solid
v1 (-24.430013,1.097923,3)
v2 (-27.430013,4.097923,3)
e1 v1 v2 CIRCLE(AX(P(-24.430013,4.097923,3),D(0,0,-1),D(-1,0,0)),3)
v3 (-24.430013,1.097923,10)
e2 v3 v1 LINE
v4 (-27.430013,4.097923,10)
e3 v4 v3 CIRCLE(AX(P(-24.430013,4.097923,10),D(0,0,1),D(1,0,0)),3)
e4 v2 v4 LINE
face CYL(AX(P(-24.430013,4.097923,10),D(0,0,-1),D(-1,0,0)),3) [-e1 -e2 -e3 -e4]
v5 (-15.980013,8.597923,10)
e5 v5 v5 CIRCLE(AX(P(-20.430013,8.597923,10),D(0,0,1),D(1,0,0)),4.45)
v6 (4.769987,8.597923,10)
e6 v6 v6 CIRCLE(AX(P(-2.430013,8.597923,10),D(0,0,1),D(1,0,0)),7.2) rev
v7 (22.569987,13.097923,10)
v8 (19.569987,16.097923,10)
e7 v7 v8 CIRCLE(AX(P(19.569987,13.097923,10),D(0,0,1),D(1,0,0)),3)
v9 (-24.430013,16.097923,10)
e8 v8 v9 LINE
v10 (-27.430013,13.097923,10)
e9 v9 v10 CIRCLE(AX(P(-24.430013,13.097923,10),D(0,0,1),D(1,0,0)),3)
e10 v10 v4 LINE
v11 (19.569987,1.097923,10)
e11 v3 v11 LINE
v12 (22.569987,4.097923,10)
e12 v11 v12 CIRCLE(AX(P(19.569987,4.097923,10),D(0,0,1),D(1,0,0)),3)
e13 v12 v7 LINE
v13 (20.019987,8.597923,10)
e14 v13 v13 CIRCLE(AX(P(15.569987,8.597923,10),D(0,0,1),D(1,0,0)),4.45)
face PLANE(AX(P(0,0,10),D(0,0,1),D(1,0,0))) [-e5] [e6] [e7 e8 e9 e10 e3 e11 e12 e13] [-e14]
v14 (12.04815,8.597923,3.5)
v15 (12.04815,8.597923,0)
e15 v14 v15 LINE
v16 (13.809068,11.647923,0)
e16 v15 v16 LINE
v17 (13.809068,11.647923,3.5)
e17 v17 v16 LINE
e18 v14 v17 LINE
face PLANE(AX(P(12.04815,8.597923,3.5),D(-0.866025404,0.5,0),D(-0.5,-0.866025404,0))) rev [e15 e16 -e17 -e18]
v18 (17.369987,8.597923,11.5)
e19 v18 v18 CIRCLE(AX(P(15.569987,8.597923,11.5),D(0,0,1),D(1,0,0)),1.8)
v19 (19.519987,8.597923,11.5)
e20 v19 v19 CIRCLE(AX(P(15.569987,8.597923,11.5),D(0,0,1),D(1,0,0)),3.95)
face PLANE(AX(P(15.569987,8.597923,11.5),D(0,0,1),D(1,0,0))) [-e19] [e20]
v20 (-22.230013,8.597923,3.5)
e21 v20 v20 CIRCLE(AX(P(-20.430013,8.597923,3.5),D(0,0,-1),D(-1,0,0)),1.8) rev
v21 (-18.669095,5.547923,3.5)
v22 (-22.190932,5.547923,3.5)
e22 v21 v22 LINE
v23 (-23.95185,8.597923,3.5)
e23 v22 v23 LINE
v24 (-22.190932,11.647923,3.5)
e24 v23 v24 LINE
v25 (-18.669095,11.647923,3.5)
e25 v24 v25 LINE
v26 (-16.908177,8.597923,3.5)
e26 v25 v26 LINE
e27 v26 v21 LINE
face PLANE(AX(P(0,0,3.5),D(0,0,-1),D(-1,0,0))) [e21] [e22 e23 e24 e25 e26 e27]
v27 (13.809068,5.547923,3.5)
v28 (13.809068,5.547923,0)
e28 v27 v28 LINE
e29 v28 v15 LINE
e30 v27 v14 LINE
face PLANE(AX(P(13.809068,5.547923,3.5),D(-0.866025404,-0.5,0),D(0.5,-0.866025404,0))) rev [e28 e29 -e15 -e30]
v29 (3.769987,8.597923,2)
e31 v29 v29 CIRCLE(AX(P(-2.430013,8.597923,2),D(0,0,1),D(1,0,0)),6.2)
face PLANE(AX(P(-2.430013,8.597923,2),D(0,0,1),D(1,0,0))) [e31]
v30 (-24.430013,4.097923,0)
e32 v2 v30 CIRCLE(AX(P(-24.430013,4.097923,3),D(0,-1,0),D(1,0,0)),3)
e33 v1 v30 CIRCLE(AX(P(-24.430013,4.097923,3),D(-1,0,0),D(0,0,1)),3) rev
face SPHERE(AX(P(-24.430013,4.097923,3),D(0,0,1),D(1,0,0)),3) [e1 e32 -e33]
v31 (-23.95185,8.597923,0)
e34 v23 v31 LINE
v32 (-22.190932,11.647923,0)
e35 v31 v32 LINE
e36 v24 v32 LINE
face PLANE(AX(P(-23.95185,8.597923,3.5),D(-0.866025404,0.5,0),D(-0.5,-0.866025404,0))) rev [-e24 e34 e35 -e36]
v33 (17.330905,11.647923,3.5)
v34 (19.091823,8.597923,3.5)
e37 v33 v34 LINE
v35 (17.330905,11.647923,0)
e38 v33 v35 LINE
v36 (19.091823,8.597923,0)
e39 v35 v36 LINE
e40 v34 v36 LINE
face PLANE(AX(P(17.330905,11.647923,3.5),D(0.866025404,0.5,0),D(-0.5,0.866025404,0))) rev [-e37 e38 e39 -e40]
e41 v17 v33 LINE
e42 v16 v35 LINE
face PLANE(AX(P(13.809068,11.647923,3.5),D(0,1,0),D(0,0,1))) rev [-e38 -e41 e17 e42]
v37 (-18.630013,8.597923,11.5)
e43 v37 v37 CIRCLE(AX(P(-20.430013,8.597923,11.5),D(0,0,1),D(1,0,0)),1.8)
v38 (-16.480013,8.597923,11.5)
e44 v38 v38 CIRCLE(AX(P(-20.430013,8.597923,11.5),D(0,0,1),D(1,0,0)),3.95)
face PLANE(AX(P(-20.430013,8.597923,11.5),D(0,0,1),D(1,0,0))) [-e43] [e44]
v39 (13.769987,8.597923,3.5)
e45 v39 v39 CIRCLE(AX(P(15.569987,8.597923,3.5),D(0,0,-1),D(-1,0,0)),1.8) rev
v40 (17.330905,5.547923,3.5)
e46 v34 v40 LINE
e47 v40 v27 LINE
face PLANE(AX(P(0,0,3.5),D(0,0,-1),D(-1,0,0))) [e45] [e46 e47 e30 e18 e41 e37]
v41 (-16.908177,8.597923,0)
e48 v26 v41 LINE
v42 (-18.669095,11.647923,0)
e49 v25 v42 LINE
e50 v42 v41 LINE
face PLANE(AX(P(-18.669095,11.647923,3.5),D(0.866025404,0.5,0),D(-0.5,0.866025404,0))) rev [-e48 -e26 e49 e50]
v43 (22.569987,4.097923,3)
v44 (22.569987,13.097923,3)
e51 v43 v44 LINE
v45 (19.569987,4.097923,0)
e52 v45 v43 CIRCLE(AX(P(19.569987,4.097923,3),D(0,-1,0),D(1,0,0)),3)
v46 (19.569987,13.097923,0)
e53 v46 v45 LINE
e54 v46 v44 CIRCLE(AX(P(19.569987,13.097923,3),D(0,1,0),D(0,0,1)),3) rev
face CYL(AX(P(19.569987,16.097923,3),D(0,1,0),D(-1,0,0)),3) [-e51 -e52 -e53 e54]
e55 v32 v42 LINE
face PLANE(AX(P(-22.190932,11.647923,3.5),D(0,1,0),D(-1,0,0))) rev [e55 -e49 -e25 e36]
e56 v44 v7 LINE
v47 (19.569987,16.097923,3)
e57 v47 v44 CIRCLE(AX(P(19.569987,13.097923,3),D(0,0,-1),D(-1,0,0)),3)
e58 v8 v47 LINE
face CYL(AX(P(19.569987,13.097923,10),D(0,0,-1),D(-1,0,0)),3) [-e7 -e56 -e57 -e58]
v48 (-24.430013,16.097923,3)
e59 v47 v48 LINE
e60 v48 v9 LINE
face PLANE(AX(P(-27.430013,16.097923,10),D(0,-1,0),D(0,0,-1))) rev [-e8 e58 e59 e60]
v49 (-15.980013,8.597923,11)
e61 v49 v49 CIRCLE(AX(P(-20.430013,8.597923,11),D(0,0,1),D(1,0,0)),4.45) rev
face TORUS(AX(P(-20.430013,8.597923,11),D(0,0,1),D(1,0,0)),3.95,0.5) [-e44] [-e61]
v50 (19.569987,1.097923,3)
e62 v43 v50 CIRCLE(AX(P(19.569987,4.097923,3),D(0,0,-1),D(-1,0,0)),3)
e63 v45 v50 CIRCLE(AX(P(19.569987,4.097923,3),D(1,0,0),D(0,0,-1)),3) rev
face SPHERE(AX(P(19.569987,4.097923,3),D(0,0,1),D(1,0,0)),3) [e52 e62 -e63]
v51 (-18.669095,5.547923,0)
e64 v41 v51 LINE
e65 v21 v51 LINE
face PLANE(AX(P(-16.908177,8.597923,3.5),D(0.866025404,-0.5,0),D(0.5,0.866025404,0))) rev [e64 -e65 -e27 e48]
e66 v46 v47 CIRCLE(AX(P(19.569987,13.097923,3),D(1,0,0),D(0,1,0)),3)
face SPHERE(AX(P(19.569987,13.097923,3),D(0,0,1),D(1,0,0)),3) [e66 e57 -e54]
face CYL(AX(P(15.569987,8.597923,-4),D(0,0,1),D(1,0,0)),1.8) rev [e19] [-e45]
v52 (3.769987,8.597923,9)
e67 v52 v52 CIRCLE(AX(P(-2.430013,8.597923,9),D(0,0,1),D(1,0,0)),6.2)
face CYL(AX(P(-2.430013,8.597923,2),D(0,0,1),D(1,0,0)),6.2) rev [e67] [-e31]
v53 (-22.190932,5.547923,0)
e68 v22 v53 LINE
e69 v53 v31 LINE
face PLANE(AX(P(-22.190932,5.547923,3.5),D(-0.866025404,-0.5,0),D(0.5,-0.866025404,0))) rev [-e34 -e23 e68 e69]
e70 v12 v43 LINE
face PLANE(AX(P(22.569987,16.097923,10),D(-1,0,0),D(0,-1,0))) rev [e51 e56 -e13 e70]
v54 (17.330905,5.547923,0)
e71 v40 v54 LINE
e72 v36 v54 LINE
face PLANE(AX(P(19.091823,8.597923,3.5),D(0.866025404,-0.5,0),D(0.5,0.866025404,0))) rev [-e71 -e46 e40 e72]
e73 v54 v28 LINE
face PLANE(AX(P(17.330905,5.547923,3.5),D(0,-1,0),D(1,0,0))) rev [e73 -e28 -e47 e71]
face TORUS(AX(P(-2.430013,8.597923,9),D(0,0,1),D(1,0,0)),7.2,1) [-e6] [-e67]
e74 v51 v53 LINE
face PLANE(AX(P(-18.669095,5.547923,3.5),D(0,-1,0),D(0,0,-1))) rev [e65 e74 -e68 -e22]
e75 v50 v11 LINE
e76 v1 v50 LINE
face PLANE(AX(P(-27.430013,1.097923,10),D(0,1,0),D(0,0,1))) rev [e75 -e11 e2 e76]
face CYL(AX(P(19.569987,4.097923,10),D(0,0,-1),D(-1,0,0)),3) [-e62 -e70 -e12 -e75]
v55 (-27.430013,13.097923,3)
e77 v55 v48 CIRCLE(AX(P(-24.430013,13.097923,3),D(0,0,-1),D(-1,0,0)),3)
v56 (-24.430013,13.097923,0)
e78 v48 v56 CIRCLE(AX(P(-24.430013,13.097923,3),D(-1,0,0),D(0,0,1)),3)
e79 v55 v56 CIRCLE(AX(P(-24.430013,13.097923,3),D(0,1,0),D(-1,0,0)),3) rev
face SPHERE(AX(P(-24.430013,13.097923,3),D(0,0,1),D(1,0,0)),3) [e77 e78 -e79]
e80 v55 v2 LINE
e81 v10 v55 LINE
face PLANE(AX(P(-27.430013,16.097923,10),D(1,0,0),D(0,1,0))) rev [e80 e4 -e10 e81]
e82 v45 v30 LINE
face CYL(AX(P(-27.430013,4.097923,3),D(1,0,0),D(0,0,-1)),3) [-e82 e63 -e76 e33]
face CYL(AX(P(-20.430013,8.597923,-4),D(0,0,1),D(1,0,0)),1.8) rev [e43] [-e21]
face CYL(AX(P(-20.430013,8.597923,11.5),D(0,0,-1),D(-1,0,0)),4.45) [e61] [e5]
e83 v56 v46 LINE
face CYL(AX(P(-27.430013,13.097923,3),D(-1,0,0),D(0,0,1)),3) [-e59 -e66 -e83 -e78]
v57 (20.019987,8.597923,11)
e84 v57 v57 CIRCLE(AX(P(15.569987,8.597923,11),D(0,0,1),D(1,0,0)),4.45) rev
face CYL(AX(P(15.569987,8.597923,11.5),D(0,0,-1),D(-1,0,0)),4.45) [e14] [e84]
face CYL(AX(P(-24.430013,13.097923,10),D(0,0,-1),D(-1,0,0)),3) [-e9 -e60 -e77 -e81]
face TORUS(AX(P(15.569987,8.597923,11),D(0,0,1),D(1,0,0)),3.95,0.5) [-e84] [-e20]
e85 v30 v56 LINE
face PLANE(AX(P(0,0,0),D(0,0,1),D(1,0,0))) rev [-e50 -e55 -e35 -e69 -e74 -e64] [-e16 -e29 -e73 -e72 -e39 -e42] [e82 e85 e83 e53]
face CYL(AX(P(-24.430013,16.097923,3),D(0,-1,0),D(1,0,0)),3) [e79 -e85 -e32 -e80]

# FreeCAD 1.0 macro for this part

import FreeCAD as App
import Part
import Sketcher
from FreeCAD import Vector
Q = App.Units.Quantity


def edges_at(feature, points):
    """Names of the edges that pass closest to the given points."""
    edges = feature.Shape.Edges
    near = lambda p: min(range(len(edges)), key=lambda i: edges[i].distToShape(Part.Vertex(*p))[0])
    return sorted({f"Edge{near(p) + 1}" for p in points})

doc = App.newDocument("Part")
body = doc.addObject("PartDesign::Body", "Body")

# Sketch on XY plane
sketch1 = body.newObject("Sketcher::SketchObject", "Sketch")
sketch1.AttachmentSupport = (doc.getObject("XY_Plane"), [""])
sketch1.MapMode = "FlatFace"
sketch1.addGeometry([
    Part.LineSegment(Vector(-27, 16, 0), Vector(-27, 1, 0)),
    Part.LineSegment(Vector(-27, 1, 0), Vector(23, 1, 0)),
    Part.LineSegment(Vector(23, 1, 0), Vector(23, 16, 0)),
    Part.LineSegment(Vector(23, 16, 0), Vector(-27, 16, 0)),
], False)
sketch1.addConstraint([
    Sketcher.Constraint("Coincident", 0, 2, 1, 1),
    Sketcher.Constraint("Coincident", 1, 2, 2, 1),
    Sketcher.Constraint("Coincident", 2, 2, 3, 1),
    Sketcher.Constraint("Coincident", 3, 2, 0, 1),
    Sketcher.Constraint("Vertical", 0),
    Sketcher.Constraint("Horizontal", 1),
    Sketcher.Constraint("Vertical", 2),
    Sketcher.Constraint("Horizontal", 3),
    Sketcher.Constraint("DistanceX", 1, 1, 1, 2, 50.0),
    Sketcher.Constraint("DistanceY", 0, 2, 0, 1, 15.0),
    Sketcher.Constraint("DistanceX", 0, 2, -1, 1, 27.430013),
    Sketcher.Constraint("DistanceY", -1, 1, 0, 2, 1.097923),
])
pad1 = body.newObject("PartDesign::Pad", "Pad")
pad1.Profile = sketch1
pad1.Length = 10

# Sketch on XY plane
sketch2 = body.newObject("Sketcher::SketchObject", "Sketch001")
sketch2.AttachmentSupport = (doc.getObject("XY_Plane"), [""])
sketch2.MapMode = "FlatFace"
sketch2.AttachmentOffset = App.Placement(Vector(0, 0, 10), App.Rotation())
sketch2.addGeometry([
    Part.Circle(Vector(-2.4, 8.6, 0), Vector(0, 0, 1), 6.2),
    Part.Circle(Vector(-20.4, 8.6, 0), Vector(0, 0, 1), 4.5),
    Part.Circle(Vector(15.6, 8.6, 0), Vector(0, 0, 1), 4.5),
], False)
sketch2.addConstraint([
    Sketcher.Constraint("Equal", 1, 2),
    Sketcher.Constraint("Horizontal", 0, 3, 1, 3),
    Sketcher.Constraint("Horizontal", 1, 3, 2, 3),
    Sketcher.Constraint("Diameter", 0, 12.4),
    Sketcher.Constraint("Diameter", 1, 8.9),
    Sketcher.Constraint("DistanceX", 1, 3, 0, 3, 18.0),
    Sketcher.Constraint("DistanceX", 0, 3, 2, 3, 18.0),
    Sketcher.Constraint("DistanceX", 0, 3, -1, 1, 2.430013),
    Sketcher.Constraint("DistanceY", -1, 1, 0, 3, 8.597923),
])
pad2 = body.newObject("PartDesign::Pad", "Pad001")
pad2.Profile = sketch2
pad2.Length = 1.5

# Sketch on XY plane
sketch3 = body.newObject("Sketcher::SketchObject", "Sketch002")
sketch3.AttachmentSupport = (doc.getObject("XY_Plane"), [""])
sketch3.MapMode = "FlatFace"
sketch3.AttachmentOffset = App.Placement(Vector(0, 0, 2), App.Rotation())
sketch3.addGeometry(Part.Circle(Vector(-2, 9, 0), Vector(0, 0, 1), 6), False)
sketch3.addConstraint([
    Sketcher.Constraint("Diameter", 0, 12.4),
    Sketcher.Constraint("DistanceX", 0, 3, -1, 1, 2.430013),
    Sketcher.Constraint("DistanceY", -1, 1, 0, 3, 8.597923),
])
pocket1 = body.newObject("PartDesign::Pocket", "Pocket")
pocket1.Profile = sketch3
pocket1.Length = 9.5
pocket1.Reversed = True

# Sketch on XY plane
sketch4 = body.newObject("Sketcher::SketchObject", "Sketch003")
sketch4.AttachmentSupport = (doc.getObject("XY_Plane"), [""])
sketch4.MapMode = "FlatFace"
sketch4.AttachmentOffset = App.Placement(Vector(0, 0, 11.5), App.Rotation())
sketch4.addGeometry([
    Part.Circle(Vector(-20.4, 8.6, 0), Vector(0, 0, 1), 1.8),
    Part.Circle(Vector(15.6, 8.6, 0), Vector(0, 0, 1), 1.8),
], False)
sketch4.addConstraint([
    Sketcher.Constraint("Equal", 0, 1),
    Sketcher.Constraint("Horizontal", 0, 3, 1, 3),
    Sketcher.Constraint("Diameter", 0, 3.6),
    Sketcher.Constraint("DistanceX", 0, 3, 1, 3, 36.0),
    Sketcher.Constraint("DistanceX", 0, 3, -1, 1, 20.430013),
    Sketcher.Constraint("DistanceY", -1, 1, 0, 3, 8.597923),
])
pocket2 = body.newObject("PartDesign::Pocket", "Pocket001")
pocket2.Profile = sketch4
pocket2.Length = 15.5

# Sketch on XY plane
sketch5 = body.newObject("Sketcher::SketchObject", "Sketch004")
sketch5.AttachmentSupport = (doc.getObject("XY_Plane"), [""])
sketch5.MapMode = "FlatFace"
sketch5.addGeometry([
    Part.LineSegment(Vector(12, 8.6, 0), Vector(13.8, 11.6, 0)),  # 0
    Part.LineSegment(Vector(13.8, 11.6, 0), Vector(17.3, 11.6, 0)),  # 1
    Part.LineSegment(Vector(17.3, 11.6, 0), Vector(19.1, 8.6, 0)),  # 2
    Part.LineSegment(Vector(19.1, 8.6, 0), Vector(17.3, 5.5, 0)),  # 3
    Part.LineSegment(Vector(17.3, 5.5, 0), Vector(13.8, 5.5, 0)),  # 4
    Part.LineSegment(Vector(13.8, 5.5, 0), Vector(12, 8.6, 0)),  # 5
    Part.LineSegment(Vector(-24, 8.6, 0), Vector(-22.2, 11.6, 0)),  # 6
    Part.LineSegment(Vector(-22.2, 11.6, 0), Vector(-18.7, 11.6, 0)),  # 7
    Part.LineSegment(Vector(-18.7, 11.6, 0), Vector(-16.9, 8.6, 0)),  # 8
    Part.LineSegment(Vector(-16.9, 8.6, 0), Vector(-18.7, 5.5, 0)),  # 9
    Part.LineSegment(Vector(-18.7, 5.5, 0), Vector(-22.2, 5.5, 0)),  # 10
    Part.LineSegment(Vector(-22.2, 5.5, 0), Vector(-24, 8.6, 0)),  # 11
], False)
sketch5.addConstraint([
    Sketcher.Constraint("Coincident", 0, 2, 1, 1),
    Sketcher.Constraint("Coincident", 1, 2, 2, 1),
    Sketcher.Constraint("Coincident", 2, 2, 3, 1),
    Sketcher.Constraint("Coincident", 3, 2, 4, 1),
    Sketcher.Constraint("Coincident", 4, 2, 5, 1),
    Sketcher.Constraint("Coincident", 5, 2, 0, 1),
    Sketcher.Constraint("Coincident", 6, 2, 7, 1),
    Sketcher.Constraint("Coincident", 7, 2, 8, 1),
    Sketcher.Constraint("Coincident", 8, 2, 9, 1),
    Sketcher.Constraint("Coincident", 9, 2, 10, 1),
    Sketcher.Constraint("Coincident", 10, 2, 11, 1),
    Sketcher.Constraint("Coincident", 11, 2, 6, 1),
    Sketcher.Constraint("Horizontal", 1),
    Sketcher.Constraint("Horizontal", 4),
    Sketcher.Constraint("Horizontal", 7),
    Sketcher.Constraint("Horizontal", 10),
    Sketcher.Constraint("Parallel", 0, 3),
    Sketcher.Constraint("Parallel", 2, 5),
    Sketcher.Constraint("Parallel", 3, 6),
    Sketcher.Constraint("Parallel", 5, 8),
    Sketcher.Constraint("Parallel", 6, 9),
    Sketcher.Constraint("Parallel", 8, 11),
    Sketcher.Constraint("Horizontal", 2, 2, 5, 2),
    Sketcher.Constraint("Horizontal", 1, 2, 6, 2),
    Sketcher.Constraint("Horizontal", 5, 2, 8, 2),
    Sketcher.Constraint("Horizontal", 4, 2, 9, 2),
    Sketcher.Constraint("Horizontal", 8, 2, 11, 2),
    Sketcher.Constraint("Vertical", 1, 2, 3, 2),
    Sketcher.Constraint("Vertical", 0, 2, 4, 2),
    Sketcher.Constraint("Equal", 4, 7),
    Sketcher.Constraint("Angle", 0, Q("60 deg")),
    Sketcher.Constraint("DistanceX", 6, 2, 0, 2, 36.0),
    Sketcher.Constraint("DistanceY", 3, 2, 1, 2, 6.1),
    Sketcher.Constraint("DistanceX", 1, 1, 1, 2, 3.521837),
    Sketcher.Constraint("DistanceX", -1, 1, 0, 2, 13.809068),
    Sketcher.Constraint("DistanceY", -1, 1, 0, 2, 11.647923),
])
pocket3 = body.newObject("PartDesign::Pocket", "Pocket002")
pocket3.Profile = sketch5
pocket3.Length = 3.5
pocket3.Reversed = True
doc.recompute()

fillet = body.newObject("PartDesign::Fillet", "Fillet")
fillet.Base = (pocket3, edges_at(pocket3, [
    (-2.43, 16.098, 0),
    (22.57, 8.598, 0),
    (-2.43, 1.098, 0),
    (-27.43, 8.598, 0),
    (-27.43, 16.098, 5),
    (22.57, 16.098, 5),
    (22.57, 1.098, 5),
    (-27.43, 1.098, 5),
]))
fillet.Radius = 3
doc.recompute()

fillet2 = body.newObject("PartDesign::Fillet", "Fillet001")
fillet2.Base = (fillet, edges_at(fillet, [(-8.63, 8.598, 10)]))
fillet2.Radius = 1
doc.recompute()

fillet3 = body.newObject("PartDesign::Fillet", "Fillet002")
fillet3.Base = (fillet2, edges_at(fillet2, [(-24.88, 8.598, 11.5), (11.12, 8.598, 11.5)]))
fillet3.Radius = 0.5

doc.recompute()
